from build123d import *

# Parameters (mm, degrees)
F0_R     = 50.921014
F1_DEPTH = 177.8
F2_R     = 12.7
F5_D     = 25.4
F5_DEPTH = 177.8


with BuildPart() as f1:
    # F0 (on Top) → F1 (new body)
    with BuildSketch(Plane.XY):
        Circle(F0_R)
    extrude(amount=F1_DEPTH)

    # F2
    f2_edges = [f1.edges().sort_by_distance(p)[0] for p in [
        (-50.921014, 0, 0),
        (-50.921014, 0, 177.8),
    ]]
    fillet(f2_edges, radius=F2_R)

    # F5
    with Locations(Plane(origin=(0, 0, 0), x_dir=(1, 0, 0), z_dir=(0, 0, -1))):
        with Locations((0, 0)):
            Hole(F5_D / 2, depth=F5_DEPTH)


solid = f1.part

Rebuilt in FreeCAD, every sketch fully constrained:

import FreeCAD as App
import Part
import Sketcher

V = App.Vector
Q = App.Units.Quantity


def edges_at(feature, points):
    """Names of the edges that pass closest to the given points."""
    edges = feature.Shape.Edges
    near = lambda p: min(range(len(edges)), key=lambda i: edges[i].distToShape(Part.Vertex(*p))[0])
    return sorted({f"Edge{near(p) + 1}" for p in points})

doc = App.newDocument("Part")
body = doc.addObject("PartDesign::Body", "Body")

# Sketch on XY plane
sketch1 = body.newObject("Sketcher::SketchObject", "Sketch")
sketch1.AttachmentSupport = (doc.getObject("XY_Plane"), [""])
sketch1.MapMode = "FlatFace"
sketch1.addGeometry(Part.Circle(V(0, 0, 0), V(0, 0, 1), 51), False)
sketch1.addConstraint([
    Sketcher.Constraint("Coincident", 0, 3, -1, 1),
    Sketcher.Constraint("Diameter", 0, Q("101.842028 mm")),
])
pad1 = body.newObject("PartDesign::Pad", "Pad")
pad1.Profile = sketch1
pad1.Length = Q("7 in")
doc.recompute()

fillet = body.newObject("PartDesign::Fillet", "Fillet")
fillet.Base = (pad1, edges_at(pad1, [(-50.921, 0, 0), (-50.921, 0, 177.8)]))
fillet.Radius = Q("0.5 in")

# Sketch on XY plane
sketch2 = body.newObject("Sketcher::SketchObject", "Sketch001")
sketch2.AttachmentSupport = (doc.getObject("XY_Plane"), [""])
sketch2.MapMode = "FlatFace"
sketch2.addGeometry(Part.Circle(V(0, 0, 0), V(0, 0, 1), 13), False)
sketch2.addConstraint([
    Sketcher.Constraint("Coincident", 0, 3, -1, 1),
    Sketcher.Constraint("Diameter", 0, Q("1 in")),
])
doc.recompute()
hole = body.newObject("PartDesign::Hole", "Hole")
hole.Profile = sketch2
hole.ThreadType = "None"
hole.Diameter = Q("1 in")
hole.DepthType = "Dimension"
hole.Depth = Q("7 in")
hole.DrillPoint = "Flat"
hole.Reversed = True

doc.recompute()
